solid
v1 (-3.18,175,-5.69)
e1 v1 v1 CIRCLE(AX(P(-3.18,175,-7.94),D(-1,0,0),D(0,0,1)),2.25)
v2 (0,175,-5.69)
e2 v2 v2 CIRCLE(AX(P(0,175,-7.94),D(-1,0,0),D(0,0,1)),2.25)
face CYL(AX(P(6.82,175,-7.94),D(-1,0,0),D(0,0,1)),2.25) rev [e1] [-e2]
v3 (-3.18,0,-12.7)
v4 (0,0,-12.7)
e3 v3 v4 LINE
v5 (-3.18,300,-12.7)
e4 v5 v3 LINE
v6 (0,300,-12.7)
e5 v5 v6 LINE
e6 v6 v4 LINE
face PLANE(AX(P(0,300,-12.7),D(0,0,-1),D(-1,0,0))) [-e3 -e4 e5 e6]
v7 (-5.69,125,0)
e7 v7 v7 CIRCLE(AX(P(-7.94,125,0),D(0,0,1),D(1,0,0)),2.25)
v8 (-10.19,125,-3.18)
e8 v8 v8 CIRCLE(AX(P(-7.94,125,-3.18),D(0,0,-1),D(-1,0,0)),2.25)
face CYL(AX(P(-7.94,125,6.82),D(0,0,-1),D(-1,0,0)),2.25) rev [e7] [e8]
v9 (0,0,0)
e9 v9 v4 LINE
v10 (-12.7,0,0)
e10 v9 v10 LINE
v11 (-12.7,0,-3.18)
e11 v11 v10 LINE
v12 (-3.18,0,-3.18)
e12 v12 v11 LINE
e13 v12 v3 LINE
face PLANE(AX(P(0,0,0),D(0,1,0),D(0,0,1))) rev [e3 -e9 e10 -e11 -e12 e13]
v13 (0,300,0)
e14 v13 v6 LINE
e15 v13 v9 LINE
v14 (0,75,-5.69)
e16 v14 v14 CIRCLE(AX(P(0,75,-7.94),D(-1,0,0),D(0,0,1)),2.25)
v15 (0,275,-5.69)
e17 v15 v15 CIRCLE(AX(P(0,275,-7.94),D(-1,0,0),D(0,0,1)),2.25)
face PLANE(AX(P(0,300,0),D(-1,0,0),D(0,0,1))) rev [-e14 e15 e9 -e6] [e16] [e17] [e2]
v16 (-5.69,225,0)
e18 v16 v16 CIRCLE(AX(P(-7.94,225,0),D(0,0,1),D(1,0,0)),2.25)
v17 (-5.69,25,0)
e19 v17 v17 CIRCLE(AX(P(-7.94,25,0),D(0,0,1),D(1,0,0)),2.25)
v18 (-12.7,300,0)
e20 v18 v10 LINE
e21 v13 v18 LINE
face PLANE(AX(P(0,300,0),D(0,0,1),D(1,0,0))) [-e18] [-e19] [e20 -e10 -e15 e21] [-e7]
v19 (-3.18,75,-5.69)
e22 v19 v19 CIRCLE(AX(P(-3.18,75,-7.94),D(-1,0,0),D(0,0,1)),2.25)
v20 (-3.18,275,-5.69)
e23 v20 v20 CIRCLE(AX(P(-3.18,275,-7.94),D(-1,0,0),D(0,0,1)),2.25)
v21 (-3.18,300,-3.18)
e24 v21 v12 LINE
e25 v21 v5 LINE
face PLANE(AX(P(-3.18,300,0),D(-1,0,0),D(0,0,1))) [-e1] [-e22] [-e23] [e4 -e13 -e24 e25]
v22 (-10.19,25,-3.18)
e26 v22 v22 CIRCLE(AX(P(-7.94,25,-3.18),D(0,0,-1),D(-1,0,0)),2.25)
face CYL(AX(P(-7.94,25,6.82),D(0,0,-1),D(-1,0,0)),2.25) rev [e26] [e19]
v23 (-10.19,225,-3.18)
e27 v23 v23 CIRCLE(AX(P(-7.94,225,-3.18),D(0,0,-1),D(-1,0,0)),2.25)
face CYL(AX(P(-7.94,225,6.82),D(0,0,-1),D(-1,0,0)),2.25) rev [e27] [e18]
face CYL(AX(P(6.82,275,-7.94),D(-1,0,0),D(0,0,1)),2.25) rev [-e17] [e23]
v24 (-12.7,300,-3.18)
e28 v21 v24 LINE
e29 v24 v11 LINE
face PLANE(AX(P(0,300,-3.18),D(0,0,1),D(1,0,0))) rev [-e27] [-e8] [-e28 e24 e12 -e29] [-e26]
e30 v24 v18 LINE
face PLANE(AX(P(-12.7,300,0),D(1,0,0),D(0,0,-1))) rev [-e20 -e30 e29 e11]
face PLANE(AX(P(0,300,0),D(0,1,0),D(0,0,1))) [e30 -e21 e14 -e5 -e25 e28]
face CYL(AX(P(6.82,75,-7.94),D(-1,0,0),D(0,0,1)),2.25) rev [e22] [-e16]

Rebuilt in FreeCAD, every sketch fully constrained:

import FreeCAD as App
import Part
import Sketcher
Q = App.Units.Quantity

doc = App.newDocument("Part")
body = doc.addObject("PartDesign::Body", "Body")

# Sketch on XZ plane
sketch1 = body.newObject("Sketcher::SketchObject", "Sketch")
sketch1.AttachmentSupport = (doc.getObject("XZ_Plane"), [""])
sketch1.MapMode = "FlatFace"
sketch1.addGeometry([
    Part.LineSegment(App.Vector(-12.7, 0, 0), App.Vector(0, 0, 0)),  # 0
    Part.LineSegment(App.Vector(0, 0, 0), App.Vector(0, -12.7, 0)),  # 1
    Part.LineSegment(App.Vector(0, -12.7, 0), App.Vector(-3.2, -12.7, 0)),  # 2
    Part.LineSegment(App.Vector(-3.2, -12.7, 0), App.Vector(-3.2, -3.2, 0)),  # 3
    Part.LineSegment(App.Vector(-3.2, -3.2, 0), App.Vector(-12.7, -3.2, 0)),  # 4
    Part.LineSegment(App.Vector(-12.7, -3.2, 0), App.Vector(-12.7, 0, 0)),  # 5
], False)
sketch1.addConstraint([
    Sketcher.Constraint("Coincident", 0, 2, 1, 1),
    Sketcher.Constraint("Coincident", 1, 2, 2, 1),
    Sketcher.Constraint("Coincident", 2, 2, 3, 1),
    Sketcher.Constraint("Coincident", 3, 2, 4, 1),
    Sketcher.Constraint("Coincident", 4, 2, 5, 1),
    Sketcher.Constraint("Coincident", 5, 2, 0, 1),
    Sketcher.Constraint("Horizontal", 0),
    Sketcher.Constraint("Vertical", 1),
    Sketcher.Constraint("Horizontal", 2),
    Sketcher.Constraint("Vertical", 3),
    Sketcher.Constraint("Horizontal", 4),
    Sketcher.Constraint("Vertical", 5),
    Sketcher.Constraint("Coincident", 0, 2, -1, 1),
    Sketcher.Constraint("Equal", 0, 1),
    Sketcher.Constraint("Equal", 4, 3),
    Sketcher.Constraint("DistanceX", 0, 1, 0, 2, Q("12.7 mm")),
    Sketcher.Constraint("DistanceX", 2, 2, 2, 1, Q("3.18 mm")),
])
pad1 = body.newObject("PartDesign::Pad", "Pad")
pad1.Profile = sketch1
pad1.Length = 300
pad1.Reversed = True

# Sketch on YZ plane
sketch2 = body.newObject("Sketcher::SketchObject", "Sketch001")
sketch2.AttachmentSupport = (doc.getObject("YZ_Plane"), [""])
sketch2.MapMode = "FlatFace"
sketch2.AttachmentOffset = App.Placement(App.Vector(0, 0, -3.18), App.Rotation())
sketch2.addGeometry([
    Part.Circle(App.Vector(275, -7.9, 0), App.Vector(0, 0, 1), 2.2),
    Part.Circle(App.Vector(175, -7.9, 0), App.Vector(0, 0, 1), 2.2),
    Part.Circle(App.Vector(75, -7.9, 0), App.Vector(0, 0, 1), 2.2),
], False)
sketch2.addConstraint([
    Sketcher.Constraint("Equal", 0, 1),
    Sketcher.Constraint("Equal", 1, 2),
    Sketcher.Constraint("Horizontal", 0, 3, 1, 3),
    Sketcher.Constraint("Horizontal", 1, 3, 2, 3),
    Sketcher.Constraint("Diameter", 0, Q("4.5 mm")),
    Sketcher.Constraint("DistanceX", -1, 1, 0, 3, Q("275 mm")),
    Sketcher.Constraint("DistanceX", -1, 1, 1, 3, Q("175 mm")),
    Sketcher.Constraint("DistanceX", -1, 1, 2, 3, Q("75 mm")),
    Sketcher.Constraint("DistanceY", 0, 3, -1, 1, Q("7.94 mm")),
])
pocket1 = body.newObject("PartDesign::Pocket", "Pocket")
pocket1.Profile = sketch2
pocket1.Length = 10
pocket1.Reversed = True

# Sketch on XY plane
sketch3 = body.newObject("Sketcher::SketchObject", "Sketch002")
sketch3.AttachmentSupport = (doc.getObject("XY_Plane"), [""])
sketch3.MapMode = "FlatFace"
sketch3.AttachmentOffset = App.Placement(App.Vector(0, 0, -3.18), App.Rotation())
sketch3.addGeometry([
    Part.Circle(App.Vector(-7.9, 225, 0), App.Vector(0, 0, 1), 2.2),
    Part.Circle(App.Vector(-7.9, 125, 0), App.Vector(0, 0, 1), 2.2),
    Part.Circle(App.Vector(-7.9, 25, 0), App.Vector(0, 0, 1), 2.2),
], False)
sketch3.addConstraint([
    Sketcher.Constraint("Equal", 0, 1),
    Sketcher.Constraint("Equal", 1, 2),
    Sketcher.Constraint("Vertical", 0, 3, 1, 3),
    Sketcher.Constraint("Vertical", 1, 3, 2, 3),
    Sketcher.Constraint("Diameter", 0, Q("4.5 mm")),
    Sketcher.Constraint("DistanceY", -1, 1, 0, 3, Q("225 mm")),
    Sketcher.Constraint("DistanceY", -1, 1, 1, 3, Q("125 mm")),
    Sketcher.Constraint("DistanceY", -1, 1, 2, 3, Q("25 mm")),
    Sketcher.Constraint("DistanceX", 0, 3, -1, 1, Q("7.94 mm")),
])
pocket2 = body.newObject("PartDesign::Pocket", "Pocket001")
pocket2.Profile = sketch3
pocket2.Length = 10
pocket2.Reversed = True

doc.recompute()
